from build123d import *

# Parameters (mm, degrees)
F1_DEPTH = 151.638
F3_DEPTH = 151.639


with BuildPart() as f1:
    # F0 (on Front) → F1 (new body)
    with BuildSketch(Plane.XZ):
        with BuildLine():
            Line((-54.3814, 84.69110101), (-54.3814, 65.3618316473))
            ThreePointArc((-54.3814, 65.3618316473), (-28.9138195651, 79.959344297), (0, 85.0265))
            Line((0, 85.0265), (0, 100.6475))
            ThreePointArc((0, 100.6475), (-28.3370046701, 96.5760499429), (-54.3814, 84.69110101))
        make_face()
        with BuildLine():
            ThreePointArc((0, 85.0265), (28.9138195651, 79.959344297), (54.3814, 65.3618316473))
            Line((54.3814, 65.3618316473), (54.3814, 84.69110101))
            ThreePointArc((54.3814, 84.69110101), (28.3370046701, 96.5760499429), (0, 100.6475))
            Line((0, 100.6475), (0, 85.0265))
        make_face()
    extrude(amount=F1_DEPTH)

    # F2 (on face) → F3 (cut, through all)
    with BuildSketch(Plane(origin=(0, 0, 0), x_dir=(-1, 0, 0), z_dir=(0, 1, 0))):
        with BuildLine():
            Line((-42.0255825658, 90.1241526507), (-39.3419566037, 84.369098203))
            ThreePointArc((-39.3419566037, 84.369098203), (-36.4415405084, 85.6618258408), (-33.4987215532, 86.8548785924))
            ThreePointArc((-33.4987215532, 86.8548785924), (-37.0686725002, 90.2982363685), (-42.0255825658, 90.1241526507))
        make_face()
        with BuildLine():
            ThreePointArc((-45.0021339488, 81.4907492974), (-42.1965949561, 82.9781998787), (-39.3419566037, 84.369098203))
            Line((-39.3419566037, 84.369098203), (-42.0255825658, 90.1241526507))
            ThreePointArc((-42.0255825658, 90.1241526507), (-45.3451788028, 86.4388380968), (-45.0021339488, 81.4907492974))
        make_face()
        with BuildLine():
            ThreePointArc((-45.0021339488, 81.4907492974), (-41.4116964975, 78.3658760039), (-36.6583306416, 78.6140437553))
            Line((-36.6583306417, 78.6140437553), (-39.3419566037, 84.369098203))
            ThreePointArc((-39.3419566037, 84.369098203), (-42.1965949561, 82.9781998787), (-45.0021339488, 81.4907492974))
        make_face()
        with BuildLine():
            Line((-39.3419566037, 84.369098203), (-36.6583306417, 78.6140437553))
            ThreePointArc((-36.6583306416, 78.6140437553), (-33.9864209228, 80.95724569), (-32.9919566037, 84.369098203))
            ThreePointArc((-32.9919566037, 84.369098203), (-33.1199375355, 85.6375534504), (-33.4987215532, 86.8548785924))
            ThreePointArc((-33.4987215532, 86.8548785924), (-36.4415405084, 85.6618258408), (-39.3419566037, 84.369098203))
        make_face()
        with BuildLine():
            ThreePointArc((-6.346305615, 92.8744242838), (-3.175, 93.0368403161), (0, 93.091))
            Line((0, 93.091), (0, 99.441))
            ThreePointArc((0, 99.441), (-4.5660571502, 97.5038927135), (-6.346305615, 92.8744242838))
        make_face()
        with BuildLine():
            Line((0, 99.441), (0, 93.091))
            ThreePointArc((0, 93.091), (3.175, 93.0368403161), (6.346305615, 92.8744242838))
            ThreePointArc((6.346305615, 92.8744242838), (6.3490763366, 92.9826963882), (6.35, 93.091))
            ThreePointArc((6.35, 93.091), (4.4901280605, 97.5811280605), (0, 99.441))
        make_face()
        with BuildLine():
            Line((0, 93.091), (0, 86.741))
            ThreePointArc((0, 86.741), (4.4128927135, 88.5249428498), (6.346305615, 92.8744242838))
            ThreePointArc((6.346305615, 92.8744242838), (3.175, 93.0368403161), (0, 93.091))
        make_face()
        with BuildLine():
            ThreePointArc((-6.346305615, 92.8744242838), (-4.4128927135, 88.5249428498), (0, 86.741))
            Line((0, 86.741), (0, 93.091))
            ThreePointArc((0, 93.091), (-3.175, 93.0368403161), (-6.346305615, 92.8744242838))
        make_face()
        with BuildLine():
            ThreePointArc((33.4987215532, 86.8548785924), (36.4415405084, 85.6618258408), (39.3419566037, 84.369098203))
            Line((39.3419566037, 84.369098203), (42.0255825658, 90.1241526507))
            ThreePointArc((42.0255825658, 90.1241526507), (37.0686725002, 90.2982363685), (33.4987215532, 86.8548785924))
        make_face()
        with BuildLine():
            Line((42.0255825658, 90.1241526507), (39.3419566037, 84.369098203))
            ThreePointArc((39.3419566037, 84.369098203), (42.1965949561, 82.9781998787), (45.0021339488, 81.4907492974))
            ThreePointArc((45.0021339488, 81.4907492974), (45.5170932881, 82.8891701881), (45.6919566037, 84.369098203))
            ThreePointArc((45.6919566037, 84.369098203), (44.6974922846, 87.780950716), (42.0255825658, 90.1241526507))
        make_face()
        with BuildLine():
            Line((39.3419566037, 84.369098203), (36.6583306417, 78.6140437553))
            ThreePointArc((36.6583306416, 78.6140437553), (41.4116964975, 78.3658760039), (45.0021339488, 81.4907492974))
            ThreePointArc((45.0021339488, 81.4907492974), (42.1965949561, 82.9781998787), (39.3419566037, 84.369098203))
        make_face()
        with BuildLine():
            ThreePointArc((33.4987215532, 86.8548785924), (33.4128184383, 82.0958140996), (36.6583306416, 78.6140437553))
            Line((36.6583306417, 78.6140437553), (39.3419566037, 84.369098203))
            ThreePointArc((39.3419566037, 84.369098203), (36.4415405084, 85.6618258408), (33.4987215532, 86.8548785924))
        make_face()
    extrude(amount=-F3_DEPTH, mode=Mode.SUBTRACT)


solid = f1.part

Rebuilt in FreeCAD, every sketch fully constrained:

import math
import FreeCAD as App
import Part
import Sketcher
Q = App.Units.Quantity

doc = App.newDocument("Part")
body = doc.addObject("PartDesign::Body", "Body")

# Sketch on XZ plane
sketch1 = body.newObject("Sketcher::SketchObject", "Sketch")
sketch1.AttachmentSupport = (doc.getObject("XZ_Plane"), [""])
sketch1.MapMode = "FlatFace"
sketch1.addGeometry([
    Part.LineSegment(App.Vector(-54, 85, 0), App.Vector(-54, 65, 0)),  # 0
    Part.ArcOfCircle(Part.Circle(App.Vector(0, 0, 0), App.Vector(0, 0, 1), 85), math.radians(50), math.radians(130)),  # 1
    Part.LineSegment(App.Vector(54, 65, 0), App.Vector(54, 85, 0)),  # 2
    Part.ArcOfCircle(Part.Circle(App.Vector(0, 0, 0), App.Vector(0, 0, 1), 101), math.radians(57), math.radians(90)),  # 3
    Part.ArcOfCircle(Part.Circle(App.Vector(0, 0, 0), App.Vector(0, 0, 1), 101), math.radians(90), math.radians(123)),  # 4
], False)
sketch1.addConstraint([
    Sketcher.Constraint("Coincident", 0, 2, 1, 2),
    Sketcher.Constraint("Coincident", 1, 1, 2, 1),
    Sketcher.Constraint("Coincident", 2, 2, 3, 1),
    Sketcher.Constraint("Tangent", 3, 2, 4, 1),
    Sketcher.Constraint("Coincident", 4, 2, 0, 1),
    Sketcher.Constraint("Vertical", 0),
    Sketcher.Constraint("Vertical", 2),
    Sketcher.Constraint("Coincident", 1, 3, -1, 1),
    Sketcher.Constraint("Coincident", 3, 3, -1, 1),
    Sketcher.Constraint("Equal", 3, 4),
    Sketcher.Constraint("PointOnObject", 3, 2, -2),
    Sketcher.Constraint("Horizontal", 0, 2, 1, 1),
    Sketcher.Constraint("Radius", 1, Q("3.3475 in")),
    Sketcher.Constraint("Radius", 3, Q("3.9625 in")),
    Sketcher.Constraint("DistanceX", 0, 2, -1, 1, Q("2.141 in")),
])
pad1 = body.newObject("PartDesign::Pad", "Pad")
pad1.Profile = sketch1
pad1.Length = Q("5.97 in")

# Sketch on XZ plane
sketch2 = body.newObject("Sketcher::SketchObject", "Sketch001")
sketch2.AttachmentSupport = (doc.getObject("XZ_Plane"), [""])
sketch2.MapMode = "FlatFace"
sketch2.addGeometry([
    Part.ArcOfCircle(Part.Circle(App.Vector(39.34, 84.37, 0), App.Vector(0, 0, 1), 6.35), math.radians(65), math.radians(157)),  # 0
    Part.ArcOfCircle(Part.Circle(App.Vector(39.34, 84.37, 0), App.Vector(0, 0, 1), 6.35), math.radians(-27), math.radians(65)),  # 1
    Part.ArcOfCircle(Part.Circle(App.Vector(39.34, 84.37, 0), App.Vector(0, 0, 1), 6.35), math.radians(-115), math.radians(-27)),  # 2
    Part.ArcOfCircle(Part.Circle(App.Vector(39.34, 84.37, 0), App.Vector(0, 0, 1), 6.35), math.radians(180), math.radians(245)),  # 3
    Part.ArcOfCircle(Part.Circle(App.Vector(39.34, 84.37, 0), App.Vector(0, 0, 1), 6.35), math.radians(157), math.radians(180)),  # 4
    Part.ArcOfCircle(Part.Circle(App.Vector(0, 93.09, 0), App.Vector(0, 0, 1), 6.35), math.radians(-178), math.radians(-90)),  # 5
    Part.ArcOfCircle(Part.Circle(App.Vector(0, 93.09, 0), App.Vector(0, 0, 1), 6.35), math.radians(180), math.radians(181.95)),  # 6
    Part.ArcOfCircle(Part.Circle(App.Vector(0, 93.09, 0), App.Vector(0, 0, 1), 6.35), math.radians(90), math.radians(180)),  # 7
    Part.ArcOfCircle(Part.Circle(App.Vector(0, 93.09, 0), App.Vector(0, 0, 1), 6.35), math.radians(-2), math.radians(90)),  # 8
    Part.ArcOfCircle(Part.Circle(App.Vector(0, 93.09, 0), App.Vector(0, 0, 1), 6.35), math.radians(-90), math.radians(-2)),  # 9
    Part.ArcOfCircle(Part.Circle(App.Vector(-39.34, 84.37, 0), App.Vector(0, 0, 1), 6.35), math.radians(-153), math.radians(-65)),  # 10
    Part.ArcOfCircle(Part.Circle(App.Vector(-39.34, 84.37, 0), App.Vector(0, 0, 1), 6.35), math.radians(180), math.radians(207)),  # 11
    Part.ArcOfCircle(Part.Circle(App.Vector(-39.34, 84.37, 0), App.Vector(0, 0, 1), 6.35), math.radians(115), math.radians(180)),  # 12
    Part.ArcOfCircle(Part.Circle(App.Vector(-39.34, 84.37, 0), App.Vector(0, 0, 1), 6.35), math.radians(23), math.radians(115)),  # 13
    Part.ArcOfCircle(Part.Circle(App.Vector(-39.34, 84.37, 0), App.Vector(0, 0, 1), 6.35), math.radians(-65), math.radians(23)),  # 14
], False)
sketch2.addConstraint([
    Sketcher.Constraint("Tangent", 0, 1, 1, 2),
    Sketcher.Constraint("Tangent", 1, 1, 2, 2),
    Sketcher.Constraint("Tangent", 2, 1, 3, 2),
    Sketcher.Constraint("Tangent", 3, 1, 4, 2),
    Sketcher.Constraint("Tangent", 4, 1, 0, 2),
    Sketcher.Constraint("Tangent", 5, 1, 6, 2),
    Sketcher.Constraint("Tangent", 6, 1, 7, 2),
    Sketcher.Constraint("Tangent", 7, 1, 8, 2),
    Sketcher.Constraint("Tangent", 8, 1, 9, 2),
    Sketcher.Constraint("Tangent", 9, 1, 5, 2),
    Sketcher.Constraint("Tangent", 10, 1, 11, 2),
    Sketcher.Constraint("Tangent", 11, 1, 12, 2),
    Sketcher.Constraint("Tangent", 12, 1, 13, 2),
    Sketcher.Constraint("Tangent", 13, 1, 14, 2),
    Sketcher.Constraint("Tangent", 14, 1, 10, 2),
    Sketcher.Constraint("Coincident", 2, 3, 0, 3),
    Sketcher.Constraint("Coincident", 7, 3, 5, 3),
    Sketcher.Constraint("Coincident", 12, 3, 10, 3),
    Sketcher.Constraint("Equal", 4, 5),
    Sketcher.Constraint("Equal", 9, 10),
    Sketcher.Constraint("Symmetric", 0, 3, 10, 3, -2),
    Sketcher.Constraint("Symmetric", 5, 1, 8, 1, -2),
    Sketcher.Constraint("PointOnObject", 7, 1, -2),
    Sketcher.Constraint("PointOnObject", 9, 1, -2),
    Sketcher.Constraint("Horizontal", 14, 3, 3, 1),
    Sketcher.Constraint("Horizontal", 9, 3, 6, 1),
    Sketcher.Constraint("Horizontal", 1, 1, 10, 1),
    Sketcher.Constraint("Horizontal", 3, 1, 11, 1),
    Sketcher.Constraint("Horizontal", 0, 1, 12, 1),
    Sketcher.Constraint("Horizontal", 4, 1, 13, 1),
    Sketcher.Constraint("Horizontal", 2, 1, 14, 1),
    Sketcher.Constraint("Radius", 0, Q("0.25 in")),
    Sketcher.Constraint("DistanceY", -1, 1, 5, 3, Q("3.665 in")),
    Sketcher.Constraint("DistanceY", -1, 1, 0, 3, Q("84.369098 mm")),
    Sketcher.Constraint("DistanceY", -1, 1, 1, 1, Q("81.490749 mm")),
    Sketcher.Constraint("DistanceX", -1, 1, 2, 1, Q("36.658331 mm")),
    Sketcher.Constraint("DistanceX", -1, 1, 4, 1, Q("33.498722 mm")),
    Sketcher.Constraint("DistanceY", -1, 1, 4, 1, Q("86.854879 mm")),
    Sketcher.Constraint("DistanceX", -1, 1, 0, 1, Q("42.025583 mm")),
    Sketcher.Constraint("DistanceX", 5, 1, -1, 1, Q("6.346306 mm")),
])
pocket1 = body.newObject("PartDesign::Pocket", "Pocket")
pocket1.Profile = sketch2
pocket1.Type = "ThroughAll"
pocket1.Reversed = True

doc.recompute()
